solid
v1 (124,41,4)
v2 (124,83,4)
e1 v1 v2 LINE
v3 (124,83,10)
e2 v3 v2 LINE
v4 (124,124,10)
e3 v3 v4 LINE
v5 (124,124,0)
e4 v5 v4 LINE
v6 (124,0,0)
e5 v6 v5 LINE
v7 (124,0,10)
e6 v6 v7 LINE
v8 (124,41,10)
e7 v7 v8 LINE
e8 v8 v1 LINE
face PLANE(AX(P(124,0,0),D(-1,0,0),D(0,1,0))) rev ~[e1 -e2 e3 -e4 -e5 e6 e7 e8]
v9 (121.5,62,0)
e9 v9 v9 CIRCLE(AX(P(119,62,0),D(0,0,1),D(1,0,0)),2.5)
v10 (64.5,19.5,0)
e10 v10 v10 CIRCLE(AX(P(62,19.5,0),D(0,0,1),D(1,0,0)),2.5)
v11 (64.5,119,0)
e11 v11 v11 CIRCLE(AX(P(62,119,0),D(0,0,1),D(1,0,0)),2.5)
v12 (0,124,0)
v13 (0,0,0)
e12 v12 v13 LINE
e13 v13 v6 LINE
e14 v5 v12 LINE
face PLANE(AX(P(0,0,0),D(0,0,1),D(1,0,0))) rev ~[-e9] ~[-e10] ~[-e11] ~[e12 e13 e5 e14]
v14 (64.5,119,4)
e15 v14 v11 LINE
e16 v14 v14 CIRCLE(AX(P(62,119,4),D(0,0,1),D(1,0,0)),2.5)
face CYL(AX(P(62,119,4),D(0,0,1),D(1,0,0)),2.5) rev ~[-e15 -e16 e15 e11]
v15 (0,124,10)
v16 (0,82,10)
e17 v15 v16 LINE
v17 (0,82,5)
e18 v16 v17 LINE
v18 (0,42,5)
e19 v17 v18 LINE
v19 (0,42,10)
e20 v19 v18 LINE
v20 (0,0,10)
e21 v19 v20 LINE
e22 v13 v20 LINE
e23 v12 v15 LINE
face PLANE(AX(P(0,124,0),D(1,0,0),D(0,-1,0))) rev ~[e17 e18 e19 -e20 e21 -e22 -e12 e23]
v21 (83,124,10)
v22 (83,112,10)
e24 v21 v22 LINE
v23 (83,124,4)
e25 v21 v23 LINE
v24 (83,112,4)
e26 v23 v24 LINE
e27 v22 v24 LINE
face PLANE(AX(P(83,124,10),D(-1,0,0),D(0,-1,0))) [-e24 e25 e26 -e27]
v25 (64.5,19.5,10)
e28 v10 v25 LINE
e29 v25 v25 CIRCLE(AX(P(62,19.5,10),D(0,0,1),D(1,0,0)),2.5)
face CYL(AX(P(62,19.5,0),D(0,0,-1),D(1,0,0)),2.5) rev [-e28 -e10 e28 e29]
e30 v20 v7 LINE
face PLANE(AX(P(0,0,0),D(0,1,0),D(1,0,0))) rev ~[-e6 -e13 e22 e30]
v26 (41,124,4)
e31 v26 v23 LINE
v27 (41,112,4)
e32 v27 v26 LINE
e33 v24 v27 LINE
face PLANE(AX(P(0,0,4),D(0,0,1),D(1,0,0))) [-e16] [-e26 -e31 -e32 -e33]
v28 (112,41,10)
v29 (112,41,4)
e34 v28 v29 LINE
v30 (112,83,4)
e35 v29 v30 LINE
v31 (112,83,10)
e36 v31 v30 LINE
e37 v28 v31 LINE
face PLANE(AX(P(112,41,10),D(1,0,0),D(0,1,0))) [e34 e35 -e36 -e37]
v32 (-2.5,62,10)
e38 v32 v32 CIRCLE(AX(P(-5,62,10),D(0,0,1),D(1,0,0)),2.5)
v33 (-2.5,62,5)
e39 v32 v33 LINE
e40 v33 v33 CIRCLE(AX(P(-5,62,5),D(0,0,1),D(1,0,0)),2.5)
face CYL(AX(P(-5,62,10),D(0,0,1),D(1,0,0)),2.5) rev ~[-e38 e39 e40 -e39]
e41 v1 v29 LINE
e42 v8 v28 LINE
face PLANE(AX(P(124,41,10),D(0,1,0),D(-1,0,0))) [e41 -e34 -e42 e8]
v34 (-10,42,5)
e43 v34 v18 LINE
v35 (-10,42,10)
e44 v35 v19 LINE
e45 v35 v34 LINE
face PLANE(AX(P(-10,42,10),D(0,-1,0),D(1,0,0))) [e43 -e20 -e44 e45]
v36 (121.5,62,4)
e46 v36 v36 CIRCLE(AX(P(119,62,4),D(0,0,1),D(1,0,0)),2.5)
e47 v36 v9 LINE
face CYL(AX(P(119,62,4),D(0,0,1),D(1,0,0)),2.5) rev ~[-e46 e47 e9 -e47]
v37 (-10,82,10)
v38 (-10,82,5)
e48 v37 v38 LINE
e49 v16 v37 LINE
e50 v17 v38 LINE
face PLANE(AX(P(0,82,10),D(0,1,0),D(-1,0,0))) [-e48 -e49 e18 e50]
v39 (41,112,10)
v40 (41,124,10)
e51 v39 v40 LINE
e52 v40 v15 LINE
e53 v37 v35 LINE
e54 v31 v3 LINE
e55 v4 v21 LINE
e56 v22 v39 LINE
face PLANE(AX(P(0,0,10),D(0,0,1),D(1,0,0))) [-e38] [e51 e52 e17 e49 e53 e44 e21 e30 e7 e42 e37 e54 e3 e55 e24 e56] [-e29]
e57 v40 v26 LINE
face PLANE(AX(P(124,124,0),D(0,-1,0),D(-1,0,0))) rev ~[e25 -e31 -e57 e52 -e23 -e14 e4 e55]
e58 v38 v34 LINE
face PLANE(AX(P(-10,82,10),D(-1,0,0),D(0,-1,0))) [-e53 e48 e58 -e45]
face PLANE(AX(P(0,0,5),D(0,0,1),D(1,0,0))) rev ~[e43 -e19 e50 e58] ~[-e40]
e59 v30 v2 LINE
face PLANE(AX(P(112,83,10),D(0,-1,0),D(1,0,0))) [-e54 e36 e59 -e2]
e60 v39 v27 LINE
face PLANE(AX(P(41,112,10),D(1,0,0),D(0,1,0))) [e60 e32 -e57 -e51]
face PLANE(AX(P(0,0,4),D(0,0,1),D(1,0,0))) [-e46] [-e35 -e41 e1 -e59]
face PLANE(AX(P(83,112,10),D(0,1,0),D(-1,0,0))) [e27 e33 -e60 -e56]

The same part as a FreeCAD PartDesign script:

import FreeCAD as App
import Part
import Sketcher
from FreeCAD import Vector
Q = App.Units.Quantity


def add_polygon(sketch, points):
    """Adds a closed chain of lines whose ends are joined by coincident constraints."""
    first, n = sketch.GeometryCount, len(points)
    for a, b in zip(points, points[1:] + points[:1]):
        sketch.addGeometry(Part.LineSegment(App.Vector(*a, 0), App.Vector(*b, 0)), False)
    for i in range(n):
        sketch.addConstraint(Sketcher.Constraint("Coincident", first + i, 2, first + (i + 1) % n, 1))

doc = App.newDocument("Part")
body = doc.addObject("PartDesign::Body", "Body")

sketch1 = body.newObject("Sketcher::SketchObject", "Sketch")
sketch1.AttachmentSupport = (doc.getObject("XY_Plane"), [""])
sketch1.MapMode = "FlatFace"
add_polygon(sketch1, [(0, 124), (0, 0), (124, 0), (124, 124)])
sketch1.addGeometry(Part.Circle(Vector(62, 19.5, 0), Vector(0, 0, 1), 2.5), False)
sketch1.addConstraint(Sketcher.Constraint("Vertical", 0))
sketch1.addConstraint(Sketcher.Constraint("Horizontal", 1))
sketch1.addConstraint(Sketcher.Constraint("Vertical", 2))
sketch1.addConstraint(Sketcher.Constraint("Horizontal", 3))
sketch1.addConstraint(Sketcher.Constraint("Coincident", 0, 2, -1, 1))
sketch1.addConstraint(Sketcher.Constraint("Equal", 3, 0))
sketch1.addConstraint(Sketcher.Constraint("Diameter", 4, Q("5 mm")))
sketch1.addConstraint(Sketcher.Constraint("DistanceX", 1, 1, 1, 2, Q("124 mm")))
sketch1.addConstraint(Sketcher.Constraint("DistanceY", -1, 1, 4, 3, Q("19.5 mm")))
sketch1.addConstraint(Sketcher.Constraint("DistanceX", -1, 1, 4, 3, Q("62 mm")))
pad1 = body.newObject("PartDesign::Pad", "Pad")
pad1.Profile = sketch1
pad1.Length = 10

sketch2 = body.newObject("Sketcher::SketchObject", "Sketch001")
sketch2.AttachmentSupport = (doc.getObject("XY_Plane"), [""])
sketch2.MapMode = "FlatFace"
sketch2.AttachmentOffset = App.Placement(Vector(0, 0, 10), App.Rotation())
add_polygon(sketch2, [(0, 42), (0, 82), (-10, 82), (-10, 42)])
sketch2.addGeometry(Part.Circle(Vector(-5, 62, 0), Vector(0, 0, 1), 2.5), False)
sketch2.addConstraint(Sketcher.Constraint("Vertical", 0))
sketch2.addConstraint(Sketcher.Constraint("Horizontal", 1))
sketch2.addConstraint(Sketcher.Constraint("Vertical", 2))
sketch2.addConstraint(Sketcher.Constraint("Horizontal", 3))
sketch2.addConstraint(Sketcher.Constraint("PointOnObject", 0, 2, -2))
sketch2.addConstraint(Sketcher.Constraint("Diameter", 4, Q("5 mm")))
sketch2.addConstraint(Sketcher.Constraint("DistanceX", 1, 2, 1, 1, Q("10 mm")))
sketch2.addConstraint(Sketcher.Constraint("DistanceY", 0, 1, 0, 2, Q("40 mm")))
sketch2.addConstraint(Sketcher.Constraint("DistanceX", 4, 3, -1, 1, Q("5 mm")))
sketch2.addConstraint(Sketcher.Constraint("DistanceY", -1, 1, 4, 3, Q("62 mm")))
sketch2.addConstraint(Sketcher.Constraint("DistanceY", -1, 1, 0, 2, Q("82 mm")))
pad2 = body.newObject("PartDesign::Pad", "Pad001")
pad2.Profile = sketch2
pad2.Length = 5
pad2.Reversed = True

sketch3 = body.newObject("Sketcher::SketchObject", "Sketch002")
sketch3.AttachmentSupport = (doc.getObject("XY_Plane"), [""])
sketch3.MapMode = "FlatFace"
sketch3.AttachmentOffset = App.Placement(Vector(0, 0, 10), App.Rotation())
add_polygon(sketch3, [(112, 41), (124, 41), (124, 83), (112, 83)])
sketch3.addConstraint(Sketcher.Constraint("Horizontal", 0))
sketch3.addConstraint(Sketcher.Constraint("Vertical", 1))
sketch3.addConstraint(Sketcher.Constraint("Horizontal", 2))
sketch3.addConstraint(Sketcher.Constraint("Vertical", 3))
sketch3.addConstraint(Sketcher.Constraint("DistanceX", 0, 1, 0, 2, Q("12 mm")))
sketch3.addConstraint(Sketcher.Constraint("DistanceY", 1, 1, 1, 2, Q("42 mm")))
sketch3.addConstraint(Sketcher.Constraint("DistanceX", -1, 1, 0, 2, Q("124 mm")))
sketch3.addConstraint(Sketcher.Constraint("DistanceY", -1, 1, 0, 2, Q("41 mm")))
pocket1 = body.newObject("PartDesign::Pocket", "Pocket")
pocket1.Profile = sketch3
pocket1.Length = 6

sketch4 = body.newObject("Sketcher::SketchObject", "Sketch003")
sketch4.AttachmentSupport = (doc.getObject("XY_Plane"), [""])
sketch4.MapMode = "FlatFace"
sketch4.AttachmentOffset = App.Placement(Vector(0, 0, 4), App.Rotation())
sketch4.addGeometry(Part.Circle(Vector(119, 62, 0), Vector(0, 0, 1), 2.5), False)
sketch4.addConstraint(Sketcher.Constraint("Diameter", 0, Q("5 mm")))
sketch4.addConstraint(Sketcher.Constraint("DistanceX", -1, 1, 0, 3, Q("119 mm")))
sketch4.addConstraint(Sketcher.Constraint("DistanceY", -1, 1, 0, 3, Q("62 mm")))
pocket2 = body.newObject("PartDesign::Pocket", "Pocket001")
pocket2.Profile = sketch4
pocket2.Type = "ThroughAll"

sketch5 = body.newObject("Sketcher::SketchObject", "Sketch004")
sketch5.AttachmentSupport = (doc.getObject("XY_Plane"), [""])
sketch5.MapMode = "FlatFace"
sketch5.AttachmentOffset = App.Placement(Vector(0, 0, 10), App.Rotation())
add_polygon(sketch5, [(83, 124), (41, 124), (41, 112), (83, 112)])
sketch5.addConstraint(Sketcher.Constraint("Horizontal", 0))
sketch5.addConstraint(Sketcher.Constraint("Vertical", 1))
sketch5.addConstraint(Sketcher.Constraint("Horizontal", 2))
sketch5.addConstraint(Sketcher.Constraint("Vertical", 3))
sketch5.addConstraint(Sketcher.Constraint("DistanceX", 0, 2, 0, 1, Q("42 mm")))
sketch5.addConstraint(Sketcher.Constraint("DistanceY", 1, 2, 1, 1, Q("12 mm")))
sketch5.addConstraint(Sketcher.Constraint("DistanceX", -1, 1, 0, 2, Q("41 mm")))
sketch5.addConstraint(Sketcher.Constraint("DistanceY", -1, 1, 0, 2, Q("124 mm")))
pocket3 = body.newObject("PartDesign::Pocket", "Pocket002")
pocket3.Profile = sketch5
pocket3.Length = 6

sketch6 = body.newObject("Sketcher::SketchObject", "Sketch005")
sketch6.AttachmentSupport = (doc.getObject("XY_Plane"), [""])
sketch6.MapMode = "FlatFace"
sketch6.AttachmentOffset = App.Placement(Vector(0, 0, 4), App.Rotation())
sketch6.addGeometry(Part.Circle(Vector(62, 119, 0), Vector(0, 0, 1), 2.5), False)
sketch6.addConstraint(Sketcher.Constraint("Diameter", 0, Q("5 mm")))
sketch6.addConstraint(Sketcher.Constraint("DistanceX", -1, 1, 0, 3, Q("62 mm")))
sketch6.addConstraint(Sketcher.Constraint("DistanceY", -1, 1, 0, 3, Q("119 mm")))
pocket4 = body.newObject("PartDesign::Pocket", "Pocket003")
pocket4.Profile = sketch6
pocket4.Type = "ThroughAll"

doc.recompute()
